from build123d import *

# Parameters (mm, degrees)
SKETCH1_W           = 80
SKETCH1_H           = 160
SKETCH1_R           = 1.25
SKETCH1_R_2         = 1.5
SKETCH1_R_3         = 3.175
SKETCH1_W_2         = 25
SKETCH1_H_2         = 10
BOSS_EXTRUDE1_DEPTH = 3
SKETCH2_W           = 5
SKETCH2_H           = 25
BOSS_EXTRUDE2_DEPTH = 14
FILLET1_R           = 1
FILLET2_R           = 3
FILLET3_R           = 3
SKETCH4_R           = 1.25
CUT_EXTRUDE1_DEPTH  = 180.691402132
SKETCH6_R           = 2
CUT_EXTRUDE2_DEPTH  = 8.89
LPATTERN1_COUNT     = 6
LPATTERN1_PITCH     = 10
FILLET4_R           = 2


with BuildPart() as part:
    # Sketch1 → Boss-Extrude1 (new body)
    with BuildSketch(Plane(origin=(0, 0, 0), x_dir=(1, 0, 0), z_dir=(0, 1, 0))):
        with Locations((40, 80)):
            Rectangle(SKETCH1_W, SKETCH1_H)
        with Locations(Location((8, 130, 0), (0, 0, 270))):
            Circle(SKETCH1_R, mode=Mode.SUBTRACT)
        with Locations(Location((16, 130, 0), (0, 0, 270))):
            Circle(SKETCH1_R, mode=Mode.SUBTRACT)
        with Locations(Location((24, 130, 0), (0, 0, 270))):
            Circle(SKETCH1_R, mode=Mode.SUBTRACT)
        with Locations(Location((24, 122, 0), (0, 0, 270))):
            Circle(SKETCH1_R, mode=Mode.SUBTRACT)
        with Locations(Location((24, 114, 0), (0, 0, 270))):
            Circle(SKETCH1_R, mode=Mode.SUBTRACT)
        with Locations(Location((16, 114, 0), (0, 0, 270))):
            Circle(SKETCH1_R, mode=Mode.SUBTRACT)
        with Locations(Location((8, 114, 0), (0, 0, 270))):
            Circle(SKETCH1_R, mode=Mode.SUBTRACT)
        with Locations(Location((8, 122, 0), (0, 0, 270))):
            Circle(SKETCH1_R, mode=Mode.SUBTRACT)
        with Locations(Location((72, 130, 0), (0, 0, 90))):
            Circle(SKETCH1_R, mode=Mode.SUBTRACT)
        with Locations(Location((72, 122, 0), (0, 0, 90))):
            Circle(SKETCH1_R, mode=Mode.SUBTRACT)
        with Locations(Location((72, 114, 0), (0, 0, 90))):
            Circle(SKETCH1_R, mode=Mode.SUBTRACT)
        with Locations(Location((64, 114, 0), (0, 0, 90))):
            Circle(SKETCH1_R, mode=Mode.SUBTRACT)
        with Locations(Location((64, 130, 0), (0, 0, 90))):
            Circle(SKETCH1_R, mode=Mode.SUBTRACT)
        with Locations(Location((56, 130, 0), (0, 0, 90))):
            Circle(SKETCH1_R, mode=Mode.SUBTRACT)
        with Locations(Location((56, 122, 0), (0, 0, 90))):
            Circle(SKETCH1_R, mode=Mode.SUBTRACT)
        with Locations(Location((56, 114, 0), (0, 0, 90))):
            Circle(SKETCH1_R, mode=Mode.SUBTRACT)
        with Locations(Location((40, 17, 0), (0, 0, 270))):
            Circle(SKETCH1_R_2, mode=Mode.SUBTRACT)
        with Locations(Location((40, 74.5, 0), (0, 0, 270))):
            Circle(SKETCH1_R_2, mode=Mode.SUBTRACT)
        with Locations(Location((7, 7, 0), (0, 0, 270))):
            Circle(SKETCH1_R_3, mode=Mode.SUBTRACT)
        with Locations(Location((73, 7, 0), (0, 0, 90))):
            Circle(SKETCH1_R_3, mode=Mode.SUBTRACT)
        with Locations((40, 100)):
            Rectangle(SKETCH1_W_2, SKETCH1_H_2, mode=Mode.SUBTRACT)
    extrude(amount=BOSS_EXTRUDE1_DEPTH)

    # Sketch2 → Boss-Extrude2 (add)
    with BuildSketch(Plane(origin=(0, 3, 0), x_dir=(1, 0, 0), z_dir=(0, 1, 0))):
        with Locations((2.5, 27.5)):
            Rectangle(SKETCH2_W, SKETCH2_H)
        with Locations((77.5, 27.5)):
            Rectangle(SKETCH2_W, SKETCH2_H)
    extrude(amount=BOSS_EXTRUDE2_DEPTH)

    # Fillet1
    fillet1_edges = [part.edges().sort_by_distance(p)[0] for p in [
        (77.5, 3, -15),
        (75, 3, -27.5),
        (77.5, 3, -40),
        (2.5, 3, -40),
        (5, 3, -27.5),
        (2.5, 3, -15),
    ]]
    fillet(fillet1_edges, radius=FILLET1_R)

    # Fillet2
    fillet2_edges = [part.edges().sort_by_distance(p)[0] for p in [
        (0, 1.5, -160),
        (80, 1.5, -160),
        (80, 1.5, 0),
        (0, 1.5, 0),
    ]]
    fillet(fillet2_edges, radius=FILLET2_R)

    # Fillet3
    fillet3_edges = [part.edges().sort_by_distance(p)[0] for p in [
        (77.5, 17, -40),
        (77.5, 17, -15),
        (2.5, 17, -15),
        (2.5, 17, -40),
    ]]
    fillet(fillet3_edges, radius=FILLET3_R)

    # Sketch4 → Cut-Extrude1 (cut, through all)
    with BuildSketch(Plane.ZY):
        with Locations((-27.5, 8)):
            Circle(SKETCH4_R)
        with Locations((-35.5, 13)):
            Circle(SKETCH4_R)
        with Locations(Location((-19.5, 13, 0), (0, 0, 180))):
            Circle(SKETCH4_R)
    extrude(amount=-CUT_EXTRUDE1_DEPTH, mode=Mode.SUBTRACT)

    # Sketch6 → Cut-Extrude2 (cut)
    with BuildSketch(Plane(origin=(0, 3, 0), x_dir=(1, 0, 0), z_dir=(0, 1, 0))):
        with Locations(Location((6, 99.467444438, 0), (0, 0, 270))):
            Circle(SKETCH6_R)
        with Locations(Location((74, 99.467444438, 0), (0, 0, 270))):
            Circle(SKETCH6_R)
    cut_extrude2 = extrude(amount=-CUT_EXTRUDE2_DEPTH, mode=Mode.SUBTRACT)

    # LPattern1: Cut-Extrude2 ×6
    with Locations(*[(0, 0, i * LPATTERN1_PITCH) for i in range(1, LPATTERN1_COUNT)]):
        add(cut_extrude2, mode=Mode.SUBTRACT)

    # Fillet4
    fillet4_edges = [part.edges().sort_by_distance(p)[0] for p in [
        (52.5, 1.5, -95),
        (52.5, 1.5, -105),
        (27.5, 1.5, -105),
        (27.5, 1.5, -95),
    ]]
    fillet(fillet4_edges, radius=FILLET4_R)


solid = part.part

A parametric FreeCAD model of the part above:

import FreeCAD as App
import Part
import Sketcher
from FreeCAD import Vector
Q = App.Units.Quantity


def edges_at(feature, points):
    """Names of the edges that pass closest to the given points."""
    edges = feature.Shape.Edges
    near = lambda p: min(range(len(edges)), key=lambda i: edges[i].distToShape(Part.Vertex(*p))[0])
    return sorted({f"Edge{near(p) + 1}" for p in points})


def add_polygon(sketch, points):
    """Adds a closed chain of lines whose ends are joined by coincident constraints."""
    first, n = sketch.GeometryCount, len(points)
    for a, b in zip(points, points[1:] + points[:1]):
        sketch.addGeometry(Part.LineSegment(App.Vector(*a, 0), App.Vector(*b, 0)), False)
    for i in range(n):
        sketch.addConstraint(Sketcher.Constraint("Coincident", first + i, 2, first + (i + 1) % n, 1))

doc = App.newDocument("Part")
body = doc.addObject("PartDesign::Body", "Body")

# Sketch on XZ plane
sketch1 = body.newObject("Sketcher::SketchObject", "Sketch")
sketch1.AttachmentSupport = (doc.getObject("XZ_Plane"), [""])
sketch1.MapMode = "FlatFace"
add_polygon(sketch1, [(0, -160), (0, 0), (80, 0), (80, -160)])  # lines 0-3
sketch1.addGeometry(Part.Circle(Vector(7, -7, 0), Vector(0, 0, 1), 3.2), False)  # 4
sketch1.addGeometry(Part.Circle(Vector(40, -17, 0), Vector(0, 0, 1), 1.5), False)  # 5
sketch1.addGeometry(Part.Circle(Vector(73, -7, 0), Vector(0, 0, 1), 3.2), False)  # 6
sketch1.addGeometry(Part.Circle(Vector(8, -114, 0), Vector(0, 0, 1), 1.2), False)  # 7
sketch1.addGeometry(Part.Circle(Vector(16, -114, 0), Vector(0, 0, 1), 1.2), False)  # 8
sketch1.addGeometry(Part.Circle(Vector(8, -122, 0), Vector(0, 0, 1), 1.2), False)  # 9
sketch1.addGeometry(Part.Circle(Vector(8, -130, 0), Vector(0, 0, 1), 1.2), False)  # 10
sketch1.addGeometry(Part.Circle(Vector(16, -130, 0), Vector(0, 0, 1), 1.2), False)  # 11
sketch1.addGeometry(Part.Circle(Vector(24, -114, 0), Vector(0, 0, 1), 1.2), False)  # 12
sketch1.addGeometry(Part.Circle(Vector(24, -122, 0), Vector(0, 0, 1), 1.2), False)  # 13
sketch1.addGeometry(Part.Circle(Vector(24, -130, 0), Vector(0, 0, 1), 1.2), False)  # 14
sketch1.addGeometry(Part.Circle(Vector(40, -74.5, 0), Vector(0, 0, 1), 1.5), False)  # 15
add_polygon(sketch1, [(52.5, -95), (27.5, -95), (27.5, -105), (52.5, -105)])  # lines 16-19
sketch1.addGeometry(Part.Circle(Vector(56, -114, 0), Vector(0, 0, 1), 1.2), False)  # 20
sketch1.addGeometry(Part.Circle(Vector(56, -122, 0), Vector(0, 0, 1), 1.2), False)  # 21
sketch1.addGeometry(Part.Circle(Vector(56, -130, 0), Vector(0, 0, 1), 1.2), False)  # 22
sketch1.addGeometry(Part.Circle(Vector(64, -114, 0), Vector(0, 0, 1), 1.2), False)  # 23
sketch1.addGeometry(Part.Circle(Vector(72, -114, 0), Vector(0, 0, 1), 1.2), False)  # 24
sketch1.addGeometry(Part.Circle(Vector(64, -130, 0), Vector(0, 0, 1), 1.2), False)  # 25
sketch1.addGeometry(Part.Circle(Vector(72, -122, 0), Vector(0, 0, 1), 1.2), False)  # 26
sketch1.addGeometry(Part.Circle(Vector(72, -130, 0), Vector(0, 0, 1), 1.2), False)  # 27
sketch1.addConstraint([
    Sketcher.Constraint("Vertical", 0),
    Sketcher.Constraint("Horizontal", 1),
    Sketcher.Constraint("Vertical", 2),
    Sketcher.Constraint("Horizontal", 3),
    Sketcher.Constraint("Horizontal", 16),
    Sketcher.Constraint("Vertical", 17),
    Sketcher.Constraint("Horizontal", 18),
    Sketcher.Constraint("Vertical", 19),
    Sketcher.Constraint("Coincident", 0, 2, -1, 1),
    Sketcher.Constraint("Equal", 4, 6),
    Sketcher.Constraint("Equal", 7, 8),
    Sketcher.Constraint("Equal", 8, 9),
    Sketcher.Constraint("Equal", 9, 10),
    Sketcher.Constraint("Equal", 10, 11),
    Sketcher.Constraint("Equal", 11, 12),
    Sketcher.Constraint("Equal", 12, 13),
    Sketcher.Constraint("Equal", 13, 14),
    Sketcher.Constraint("Equal", 5, 15),
    Sketcher.Constraint("Equal", 14, 20),
    Sketcher.Constraint("Equal", 20, 21),
    Sketcher.Constraint("Equal", 21, 22),
    Sketcher.Constraint("Equal", 22, 23),
    Sketcher.Constraint("Equal", 23, 24),
    Sketcher.Constraint("Equal", 24, 25),
    Sketcher.Constraint("Equal", 25, 26),
    Sketcher.Constraint("Equal", 26, 27),
    Sketcher.Constraint("Horizontal", 4, 3, 6, 3),
    Sketcher.Constraint("Horizontal", 7, 3, 8, 3),
    Sketcher.Constraint("Horizontal", 10, 3, 11, 3),
    Sketcher.Constraint("Horizontal", 8, 3, 12, 3),
    Sketcher.Constraint("Horizontal", 9, 3, 13, 3),
    Sketcher.Constraint("Horizontal", 11, 3, 14, 3),
    Sketcher.Constraint("Horizontal", 12, 3, 20, 3),
    Sketcher.Constraint("Horizontal", 13, 3, 21, 3),
    Sketcher.Constraint("Horizontal", 14, 3, 22, 3),
    Sketcher.Constraint("Horizontal", 20, 3, 23, 3),
    Sketcher.Constraint("Horizontal", 23, 3, 24, 3),
    Sketcher.Constraint("Horizontal", 22, 3, 25, 3),
    Sketcher.Constraint("Horizontal", 21, 3, 26, 3),
    Sketcher.Constraint("Horizontal", 25, 3, 27, 3),
    Sketcher.Constraint("Vertical", 7, 3, 9, 3),
    Sketcher.Constraint("Vertical", 9, 3, 10, 3),
    Sketcher.Constraint("Vertical", 8, 3, 11, 3),
    Sketcher.Constraint("Vertical", 12, 3, 13, 3),
    Sketcher.Constraint("Vertical", 13, 3, 14, 3),
    Sketcher.Constraint("Vertical", 5, 3, 15, 3),
    Sketcher.Constraint("Vertical", 20, 3, 21, 3),
    Sketcher.Constraint("Vertical", 21, 3, 22, 3),
    Sketcher.Constraint("Vertical", 23, 3, 25, 3),
    Sketcher.Constraint("Vertical", 24, 3, 26, 3),
    Sketcher.Constraint("Vertical", 26, 3, 27, 3),
    Sketcher.Constraint("Diameter", 5, Q("3 mm")),
    Sketcher.Constraint("Diameter", 7, Q("2.5 mm")),
    Sketcher.Constraint("Diameter", 4, Q("6.35 mm")),
    Sketcher.Constraint("DistanceX", 1, 1, 1, 2, Q("80 mm")),
    Sketcher.Constraint("DistanceX", 16, 2, 16, 1, Q("25 mm")),
    Sketcher.Constraint("DistanceY", 0, 1, 0, 2, Q("160 mm")),
    Sketcher.Constraint("DistanceY", 17, 2, 17, 1, Q("10 mm")),
    Sketcher.Constraint("DistanceX", -1, 1, 4, 3, Q("7 mm")),
    Sketcher.Constraint("DistanceY", 4, 3, -1, 1, Q("7 mm")),
    Sketcher.Constraint("DistanceX", -1, 1, 5, 3, Q("40 mm")),
    Sketcher.Constraint("DistanceY", 5, 3, -1, 1, Q("17 mm")),
    Sketcher.Constraint("DistanceX", -1, 1, 6, 3, Q("73 mm")),
    Sketcher.Constraint("DistanceX", -1, 1, 7, 3, Q("8 mm")),
    Sketcher.Constraint("DistanceY", 7, 3, -1, 1, Q("114 mm")),
    Sketcher.Constraint("DistanceX", -1, 1, 8, 3, Q("16 mm")),
    Sketcher.Constraint("DistanceY", 9, 3, -1, 1, Q("122 mm")),
    Sketcher.Constraint("DistanceY", 10, 3, -1, 1, Q("130 mm")),
    Sketcher.Constraint("DistanceX", -1, 1, 12, 3, Q("24 mm")),
    Sketcher.Constraint("DistanceX", -1, 1, 20, 3, Q("56 mm")),
    Sketcher.Constraint("DistanceX", -1, 1, 23, 3, Q("64 mm")),
    Sketcher.Constraint("DistanceX", -1, 1, 24, 3, Q("72 mm")),
    Sketcher.Constraint("DistanceY", 16, 2, -1, 1, Q("95 mm")),
    Sketcher.Constraint("DistanceY", 15, 3, -1, 1, Q("74.5 mm")),
    Sketcher.Constraint("DistanceX", -1, 1, 16, 2, Q("27.5 mm")),
])
pad1 = body.newObject("PartDesign::Pad", "Pad")
pad1.Profile = sketch1
pad1.Length = 3
pad1.Reversed = True

# Sketch on XZ plane
sketch2 = body.newObject("Sketcher::SketchObject", "Sketch001")
sketch2.AttachmentSupport = (doc.getObject("XZ_Plane"), [""])
sketch2.MapMode = "FlatFace"
sketch2.AttachmentOffset = App.Placement(Vector(0, 0, -3), App.Rotation())
add_polygon(sketch2, [(0, -40), (0, -15), (5, -15), (5, -40)])  # lines 0-3
add_polygon(sketch2, [(75, -40), (75, -15), (80, -15), (80, -40)])  # lines 4-7
sketch2.addConstraint([
    Sketcher.Constraint("Vertical", 0),
    Sketcher.Constraint("Horizontal", 1),
    Sketcher.Constraint("Vertical", 2),
    Sketcher.Constraint("Horizontal", 3),
    Sketcher.Constraint("Vertical", 4),
    Sketcher.Constraint("Horizontal", 5),
    Sketcher.Constraint("Vertical", 6),
    Sketcher.Constraint("Horizontal", 7),
    Sketcher.Constraint("PointOnObject", 0, 2, -2),
    Sketcher.Constraint("Horizontal", 1, 2, 4, 2),
    Sketcher.Constraint("Horizontal", 3, 2, 6, 2),
    Sketcher.Constraint("Equal", 3, 5),
    Sketcher.Constraint("DistanceX", 1, 1, 1, 2, Q("5 mm")),
    Sketcher.Constraint("DistanceY", 0, 1, 0, 2, Q("25 mm")),
    Sketcher.Constraint("DistanceY", 0, 2, -1, 1, Q("15 mm")),
    Sketcher.Constraint("DistanceX", -1, 1, 4, 2, Q("75 mm")),
])
pad2 = body.newObject("PartDesign::Pad", "Pad001")
pad2.Profile = sketch2
pad2.Length = 14
pad2.Reversed = True
doc.recompute()

fillet = body.newObject("PartDesign::Fillet", "Fillet")
fillet.Base = (pad2, edges_at(pad2, [
    (77.5, 3, -15),
    (75, 3, -27.5),
    (77.5, 3, -40),
    (2.5, 3, -40),
    (5, 3, -27.5),
    (2.5, 3, -15),
]))
fillet.Radius = 1
doc.recompute()

fillet2 = body.newObject("PartDesign::Fillet", "Fillet001")
fillet2.Base = (fillet, edges_at(fillet, [
    (0, 1.5, -160),
    (80, 1.5, -160),
    (80, 1.5, 0),
    (0, 1.5, 0),
]))
fillet2.Radius = 3
doc.recompute()

fillet3 = body.newObject("PartDesign::Fillet", "Fillet002")
fillet3.Base = (fillet2, edges_at(fillet2, [
    (77.5, 17, -40),
    (77.5, 17, -15),
    (2.5, 17, -15),
    (2.5, 17, -40),
]))
fillet3.Radius = 3

# Sketch on YZ plane
sketch3 = body.newObject("Sketcher::SketchObject", "Sketch002")
sketch3.AttachmentSupport = (doc.getObject("YZ_Plane"), [""])
sketch3.MapMode = "FlatFace"
sketch3.addGeometry([
    Part.Circle(Vector(8, -27.5, 0), Vector(0, 0, 1), 1.2),
    Part.Circle(Vector(13, -35.5, 0), Vector(0, 0, 1), 1.2),
    Part.Circle(Vector(13, -19.5, 0), Vector(0, 0, 1), 1.2),
], False)
sketch3.addConstraint([
    Sketcher.Constraint("Equal", 0, 1),
    Sketcher.Constraint("Equal", 1, 2),
    Sketcher.Constraint("Vertical", 1, 3, 2, 3),
    Sketcher.Constraint("Diameter", 0, Q("2.5 mm")),
    Sketcher.Constraint("DistanceX", -1, 1, 0, 3, Q("8 mm")),
    Sketcher.Constraint("DistanceX", -1, 1, 1, 3, Q("13 mm")),
    Sketcher.Constraint("DistanceY", 1, 3, 0, 3, Q("8 mm")),
    Sketcher.Constraint("DistanceY", 0, 3, 2, 3, Q("8 mm")),
    Sketcher.Constraint("DistanceY", 0, 3, -1, 1, Q("27.5 mm")),
])
pocket1 = body.newObject("PartDesign::Pocket", "Pocket")
pocket1.Profile = sketch3
pocket1.Type = "ThroughAll"
pocket1.Reversed = True

# Sketch on XZ plane
sketch4 = body.newObject("Sketcher::SketchObject", "Sketch003")
sketch4.AttachmentSupport = (doc.getObject("XZ_Plane"), [""])
sketch4.MapMode = "FlatFace"
sketch4.AttachmentOffset = App.Placement(Vector(0, 0, -3), App.Rotation())
sketch4.addGeometry([
    Part.Circle(Vector(6, -99.5, 0), Vector(0, 0, 1), 2),
    Part.Circle(Vector(74, -99.5, 0), Vector(0, 0, 1), 2),
], False)
sketch4.addConstraint([
    Sketcher.Constraint("Equal", 0, 1),
    Sketcher.Constraint("Horizontal", 0, 3, 1, 3),
    Sketcher.Constraint("Diameter", 0, Q("4 mm")),
    Sketcher.Constraint("DistanceX", -1, 1, 0, 3, Q("6 mm")),
    Sketcher.Constraint("DistanceX", -1, 1, 1, 3, Q("74 mm")),
    Sketcher.Constraint("DistanceY", 0, 3, -1, 1, Q("99.467444 mm")),
])
pocket2 = body.newObject("PartDesign::Pocket", "Pocket001")
pocket2.Profile = sketch4
pocket2.Length = 8.89
pocket2.Reversed = True
doc.recompute()

linearpattern = body.newObject("PartDesign::LinearPattern", "LinearPattern")
linearpattern.Originals = [pocket2]
linearpattern.Direction = (doc.getObject("Z_Axis"), [""])
linearpattern.Mode = "offset"
linearpattern.Offset = 10
linearpattern.Occurrences = 6
body.Tip = linearpattern
doc.recompute()

fillet4 = body.newObject("PartDesign::Fillet", "Fillet003")
fillet4.Base = (linearpattern, edges_at(linearpattern, [
    (52.5, 1.5, -95),
    (52.5, 1.5, -105),
    (27.5, 1.5, -105),
    (27.5, 1.5, -95),
]))
fillet4.Radius = 2

doc.recompute()
